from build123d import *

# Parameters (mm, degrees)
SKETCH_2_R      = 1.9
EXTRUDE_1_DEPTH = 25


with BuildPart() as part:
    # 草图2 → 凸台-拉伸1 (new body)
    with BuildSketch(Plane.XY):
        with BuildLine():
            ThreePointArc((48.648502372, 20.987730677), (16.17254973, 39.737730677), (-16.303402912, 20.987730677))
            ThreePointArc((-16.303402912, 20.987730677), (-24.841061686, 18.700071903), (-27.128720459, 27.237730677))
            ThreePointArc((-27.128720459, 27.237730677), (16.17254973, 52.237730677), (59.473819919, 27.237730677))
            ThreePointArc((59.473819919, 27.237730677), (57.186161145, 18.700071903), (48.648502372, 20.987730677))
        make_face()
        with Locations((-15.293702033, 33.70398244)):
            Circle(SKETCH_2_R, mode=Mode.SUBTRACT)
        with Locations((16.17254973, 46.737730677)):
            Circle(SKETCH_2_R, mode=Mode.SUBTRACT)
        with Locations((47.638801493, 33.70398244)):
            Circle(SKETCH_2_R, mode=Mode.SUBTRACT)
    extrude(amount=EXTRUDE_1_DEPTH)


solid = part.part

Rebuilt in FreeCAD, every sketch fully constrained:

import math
import FreeCAD as App
import Part
import Sketcher
from FreeCAD import Vector

doc = App.newDocument("Part")
body = doc.addObject("PartDesign::Body", "Body")

sketch1 = body.newObject("Sketcher::SketchObject", "Sketch")
sketch1.AttachmentSupport = (doc.getObject("XY_Plane"), [""])
sketch1.MapMode = "FlatFace"
sketch1.addGeometry([
    Part.ArcOfCircle(Part.Circle(Vector(16.2, 2.2, 0), Vector(0, 0, 1), 37.5), math.radians(30), math.radians(150)),
    Part.ArcOfCircle(Part.Circle(Vector(54.1, 24.1, 0), Vector(0, 0, 1), 6.2), math.radians(-150), math.radians(30)),
    Part.ArcOfCircle(Part.Circle(Vector(16.2, 2.2, 0), Vector(0, 0, 1), 50), math.radians(30), math.radians(150)),
    Part.ArcOfCircle(Part.Circle(Vector(-21.7, 24.1, 0), Vector(0, 0, 1), 6.2), math.radians(150), math.radians(330)),
    Part.Circle(Vector(47.6, 33.7, 0), Vector(0, 0, 1), 1.9),
    Part.Circle(Vector(-15.3, 33.7, 0), Vector(0, 0, 1), 1.9),
    Part.Circle(Vector(16.2, 46.7, 0), Vector(0, 0, 1), 1.9),
], False)
sketch1.addConstraint([
    Sketcher.Constraint("Tangent", 0, 1, 1, 1),
    Sketcher.Constraint("Tangent", 1, 2, 2, 1),
    Sketcher.Constraint("Tangent", 2, 2, 3, 1),
    Sketcher.Constraint("Tangent", 3, 2, 0, 2),
    Sketcher.Constraint("Coincident", 2, 3, 0, 3),
    Sketcher.Constraint("Equal", 4, 5),
    Sketcher.Constraint("Equal", 5, 6),
    Sketcher.Constraint("Horizontal", 1, 3, 3, 3),
    Sketcher.Constraint("Horizontal", 4, 3, 5, 3),
    Sketcher.Constraint("Vertical", 2, 3, 6, 3),
    Sketcher.Constraint("Radius", 2, 50.0),
    Sketcher.Constraint("Diameter", 4, 3.8),
    Sketcher.Constraint("Radius", 0, 37.5),
    Sketcher.Constraint("DistanceY", 0, 3, 1, 2, 25.0),
    Sketcher.Constraint("DistanceY", 0, 3, 6, 3, 44.5),
    Sketcher.Constraint("DistanceX", -1, 1, 4, 3, 47.638801),
    Sketcher.Constraint("DistanceX", 4, 3, 0, 1, 1.009701),
    Sketcher.Constraint("DistanceX", 3, 2, 5, 3, 1.009701),
    Sketcher.Constraint("DistanceY", -1, 1, 0, 3, 2.237731),
    Sketcher.Constraint("DistanceY", 1, 3, 4, 3, 9.591252),
])
pad1 = body.newObject("PartDesign::Pad", "Pad")
pad1.Profile = sketch1
pad1.Length = 25

doc.recompute()
